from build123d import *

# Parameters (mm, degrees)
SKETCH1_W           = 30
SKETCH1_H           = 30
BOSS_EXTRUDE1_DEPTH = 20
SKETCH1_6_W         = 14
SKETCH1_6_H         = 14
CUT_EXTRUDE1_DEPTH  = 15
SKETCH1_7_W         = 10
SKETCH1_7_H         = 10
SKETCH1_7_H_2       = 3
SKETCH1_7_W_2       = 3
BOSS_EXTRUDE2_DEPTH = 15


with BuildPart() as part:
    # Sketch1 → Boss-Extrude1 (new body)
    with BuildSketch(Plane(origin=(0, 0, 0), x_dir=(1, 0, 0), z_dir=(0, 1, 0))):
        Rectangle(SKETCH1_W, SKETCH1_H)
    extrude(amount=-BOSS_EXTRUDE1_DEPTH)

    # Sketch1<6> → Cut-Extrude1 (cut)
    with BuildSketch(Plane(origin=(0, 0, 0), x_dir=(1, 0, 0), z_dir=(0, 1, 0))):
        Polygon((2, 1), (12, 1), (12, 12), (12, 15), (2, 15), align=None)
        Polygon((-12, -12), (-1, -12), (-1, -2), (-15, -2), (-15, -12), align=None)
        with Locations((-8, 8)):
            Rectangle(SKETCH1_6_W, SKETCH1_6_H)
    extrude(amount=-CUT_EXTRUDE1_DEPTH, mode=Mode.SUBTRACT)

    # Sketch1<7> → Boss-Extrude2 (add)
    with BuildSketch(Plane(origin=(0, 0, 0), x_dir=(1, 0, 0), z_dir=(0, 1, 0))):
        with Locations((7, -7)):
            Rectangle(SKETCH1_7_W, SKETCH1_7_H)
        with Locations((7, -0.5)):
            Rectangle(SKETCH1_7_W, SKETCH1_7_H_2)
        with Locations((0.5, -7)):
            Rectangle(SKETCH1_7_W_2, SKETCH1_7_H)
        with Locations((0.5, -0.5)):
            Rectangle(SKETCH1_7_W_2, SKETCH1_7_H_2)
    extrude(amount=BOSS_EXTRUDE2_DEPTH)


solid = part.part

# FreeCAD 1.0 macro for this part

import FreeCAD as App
import Part
import Sketcher
Q = App.Units.Quantity


def add_polygon(sketch, points):
    """Adds a closed chain of lines whose ends are joined by coincident constraints."""
    first, n = sketch.GeometryCount, len(points)
    for a, b in zip(points, points[1:] + points[:1]):
        sketch.addGeometry(Part.LineSegment(App.Vector(*a, 0), App.Vector(*b, 0)), False)
    for i in range(n):
        sketch.addConstraint(Sketcher.Constraint("Coincident", first + i, 2, first + (i + 1) % n, 1))

doc = App.newDocument("Part")
body = doc.addObject("PartDesign::Body", "Body")

sketch1 = body.newObject("Sketcher::SketchObject", "Sketch")
sketch1.AttachmentSupport = (doc.getObject("XZ_Plane"), [""])
sketch1.MapMode = "FlatFace"
add_polygon(sketch1, [(-15, -15), (-15, 15), (15, 15), (15, -15)])
sketch1.addConstraint([
    Sketcher.Constraint("Vertical", 0),
    Sketcher.Constraint("Horizontal", 1),
    Sketcher.Constraint("Vertical", 2),
    Sketcher.Constraint("Horizontal", 3),
    Sketcher.Constraint("Symmetric", 0, 2, 2, 2, -1, 1),
    Sketcher.Constraint("Equal", 3, 0),
    Sketcher.Constraint("DistanceX", 1, 1, 1, 2, Q("30 mm")),
])
pad1 = body.newObject("PartDesign::Pad", "Pad")
pad1.Profile = sketch1
pad1.Length = 20

sketch2 = body.newObject("Sketcher::SketchObject", "Sketch001")
sketch2.AttachmentSupport = (doc.getObject("XZ_Plane"), [""])
sketch2.MapMode = "FlatFace"
add_polygon(sketch2, [(2, -1), (12, -1), (12, -15), (2, -15)])
add_polygon(sketch2, [(-1, 12), (-1, 2), (-15, 2), (-15, 12)])
add_polygon(sketch2, [(-15, -15), (-15, -1), (-1, -1), (-1, -15)])
sketch2.addConstraint([
    Sketcher.Constraint("Horizontal", 0),
    Sketcher.Constraint("Vertical", 1),
    Sketcher.Constraint("Horizontal", 2),
    Sketcher.Constraint("Vertical", 3),
    Sketcher.Constraint("Vertical", 4),
    Sketcher.Constraint("Horizontal", 5),
    Sketcher.Constraint("Vertical", 6),
    Sketcher.Constraint("Horizontal", 7),
    Sketcher.Constraint("Vertical", 8),
    Sketcher.Constraint("Horizontal", 9),
    Sketcher.Constraint("Vertical", 10),
    Sketcher.Constraint("Horizontal", 11),
    Sketcher.Constraint("Horizontal", 3, 2, 8, 2),
    Sketcher.Constraint("Horizontal", 2, 2, 10, 2),
    Sketcher.Constraint("Vertical", 6, 2, 8, 2),
    Sketcher.Constraint("Vertical", 7, 2, 9, 2),
    Sketcher.Constraint("Equal", 11, 1),
    Sketcher.Constraint("Equal", 2, 4),
    Sketcher.Constraint("DistanceX", 0, 1, 0, 2, Q("10 mm")),
    Sketcher.Constraint("DistanceX", 5, 2, 5, 1, Q("14 mm")),
    Sketcher.Constraint("DistanceX", -1, 1, 0, 2, Q("12 mm")),
    Sketcher.Constraint("DistanceY", 0, 2, -1, 1, Q("1 mm")),
    Sketcher.Constraint("DistanceX", 4, 2, -1, 1, Q("1 mm")),
    Sketcher.Constraint("DistanceY", -1, 1, 4, 2, Q("2 mm")),
])
pocket1 = body.newObject("PartDesign::Pocket", "Pocket")
pocket1.Profile = sketch2
pocket1.Length = 15
pocket1.Reversed = True

sketch3 = body.newObject("Sketcher::SketchObject", "Sketch002")
sketch3.AttachmentSupport = (doc.getObject("XZ_Plane"), [""])
sketch3.MapMode = "FlatFace"
add_polygon(sketch3, [(12, 12), (12, -1), (-1, -1), (-1, 12)])
sketch3.addConstraint([
    Sketcher.Constraint("Vertical", 0),
    Sketcher.Constraint("Horizontal", 1),
    Sketcher.Constraint("Vertical", 2),
    Sketcher.Constraint("Horizontal", 3),
    Sketcher.Constraint("Equal", 3, 0),
    Sketcher.Constraint("DistanceX", 1, 2, 1, 1, Q("13 mm")),
    Sketcher.Constraint("DistanceX", -1, 1, 0, 2, Q("12 mm")),
    Sketcher.Constraint("DistanceY", 0, 2, -1, 1, Q("1 mm")),
])
pad2 = body.newObject("PartDesign::Pad", "Pad001")
pad2.Profile = sketch3
pad2.Length = 15
pad2.Reversed = True

doc.recompute()
